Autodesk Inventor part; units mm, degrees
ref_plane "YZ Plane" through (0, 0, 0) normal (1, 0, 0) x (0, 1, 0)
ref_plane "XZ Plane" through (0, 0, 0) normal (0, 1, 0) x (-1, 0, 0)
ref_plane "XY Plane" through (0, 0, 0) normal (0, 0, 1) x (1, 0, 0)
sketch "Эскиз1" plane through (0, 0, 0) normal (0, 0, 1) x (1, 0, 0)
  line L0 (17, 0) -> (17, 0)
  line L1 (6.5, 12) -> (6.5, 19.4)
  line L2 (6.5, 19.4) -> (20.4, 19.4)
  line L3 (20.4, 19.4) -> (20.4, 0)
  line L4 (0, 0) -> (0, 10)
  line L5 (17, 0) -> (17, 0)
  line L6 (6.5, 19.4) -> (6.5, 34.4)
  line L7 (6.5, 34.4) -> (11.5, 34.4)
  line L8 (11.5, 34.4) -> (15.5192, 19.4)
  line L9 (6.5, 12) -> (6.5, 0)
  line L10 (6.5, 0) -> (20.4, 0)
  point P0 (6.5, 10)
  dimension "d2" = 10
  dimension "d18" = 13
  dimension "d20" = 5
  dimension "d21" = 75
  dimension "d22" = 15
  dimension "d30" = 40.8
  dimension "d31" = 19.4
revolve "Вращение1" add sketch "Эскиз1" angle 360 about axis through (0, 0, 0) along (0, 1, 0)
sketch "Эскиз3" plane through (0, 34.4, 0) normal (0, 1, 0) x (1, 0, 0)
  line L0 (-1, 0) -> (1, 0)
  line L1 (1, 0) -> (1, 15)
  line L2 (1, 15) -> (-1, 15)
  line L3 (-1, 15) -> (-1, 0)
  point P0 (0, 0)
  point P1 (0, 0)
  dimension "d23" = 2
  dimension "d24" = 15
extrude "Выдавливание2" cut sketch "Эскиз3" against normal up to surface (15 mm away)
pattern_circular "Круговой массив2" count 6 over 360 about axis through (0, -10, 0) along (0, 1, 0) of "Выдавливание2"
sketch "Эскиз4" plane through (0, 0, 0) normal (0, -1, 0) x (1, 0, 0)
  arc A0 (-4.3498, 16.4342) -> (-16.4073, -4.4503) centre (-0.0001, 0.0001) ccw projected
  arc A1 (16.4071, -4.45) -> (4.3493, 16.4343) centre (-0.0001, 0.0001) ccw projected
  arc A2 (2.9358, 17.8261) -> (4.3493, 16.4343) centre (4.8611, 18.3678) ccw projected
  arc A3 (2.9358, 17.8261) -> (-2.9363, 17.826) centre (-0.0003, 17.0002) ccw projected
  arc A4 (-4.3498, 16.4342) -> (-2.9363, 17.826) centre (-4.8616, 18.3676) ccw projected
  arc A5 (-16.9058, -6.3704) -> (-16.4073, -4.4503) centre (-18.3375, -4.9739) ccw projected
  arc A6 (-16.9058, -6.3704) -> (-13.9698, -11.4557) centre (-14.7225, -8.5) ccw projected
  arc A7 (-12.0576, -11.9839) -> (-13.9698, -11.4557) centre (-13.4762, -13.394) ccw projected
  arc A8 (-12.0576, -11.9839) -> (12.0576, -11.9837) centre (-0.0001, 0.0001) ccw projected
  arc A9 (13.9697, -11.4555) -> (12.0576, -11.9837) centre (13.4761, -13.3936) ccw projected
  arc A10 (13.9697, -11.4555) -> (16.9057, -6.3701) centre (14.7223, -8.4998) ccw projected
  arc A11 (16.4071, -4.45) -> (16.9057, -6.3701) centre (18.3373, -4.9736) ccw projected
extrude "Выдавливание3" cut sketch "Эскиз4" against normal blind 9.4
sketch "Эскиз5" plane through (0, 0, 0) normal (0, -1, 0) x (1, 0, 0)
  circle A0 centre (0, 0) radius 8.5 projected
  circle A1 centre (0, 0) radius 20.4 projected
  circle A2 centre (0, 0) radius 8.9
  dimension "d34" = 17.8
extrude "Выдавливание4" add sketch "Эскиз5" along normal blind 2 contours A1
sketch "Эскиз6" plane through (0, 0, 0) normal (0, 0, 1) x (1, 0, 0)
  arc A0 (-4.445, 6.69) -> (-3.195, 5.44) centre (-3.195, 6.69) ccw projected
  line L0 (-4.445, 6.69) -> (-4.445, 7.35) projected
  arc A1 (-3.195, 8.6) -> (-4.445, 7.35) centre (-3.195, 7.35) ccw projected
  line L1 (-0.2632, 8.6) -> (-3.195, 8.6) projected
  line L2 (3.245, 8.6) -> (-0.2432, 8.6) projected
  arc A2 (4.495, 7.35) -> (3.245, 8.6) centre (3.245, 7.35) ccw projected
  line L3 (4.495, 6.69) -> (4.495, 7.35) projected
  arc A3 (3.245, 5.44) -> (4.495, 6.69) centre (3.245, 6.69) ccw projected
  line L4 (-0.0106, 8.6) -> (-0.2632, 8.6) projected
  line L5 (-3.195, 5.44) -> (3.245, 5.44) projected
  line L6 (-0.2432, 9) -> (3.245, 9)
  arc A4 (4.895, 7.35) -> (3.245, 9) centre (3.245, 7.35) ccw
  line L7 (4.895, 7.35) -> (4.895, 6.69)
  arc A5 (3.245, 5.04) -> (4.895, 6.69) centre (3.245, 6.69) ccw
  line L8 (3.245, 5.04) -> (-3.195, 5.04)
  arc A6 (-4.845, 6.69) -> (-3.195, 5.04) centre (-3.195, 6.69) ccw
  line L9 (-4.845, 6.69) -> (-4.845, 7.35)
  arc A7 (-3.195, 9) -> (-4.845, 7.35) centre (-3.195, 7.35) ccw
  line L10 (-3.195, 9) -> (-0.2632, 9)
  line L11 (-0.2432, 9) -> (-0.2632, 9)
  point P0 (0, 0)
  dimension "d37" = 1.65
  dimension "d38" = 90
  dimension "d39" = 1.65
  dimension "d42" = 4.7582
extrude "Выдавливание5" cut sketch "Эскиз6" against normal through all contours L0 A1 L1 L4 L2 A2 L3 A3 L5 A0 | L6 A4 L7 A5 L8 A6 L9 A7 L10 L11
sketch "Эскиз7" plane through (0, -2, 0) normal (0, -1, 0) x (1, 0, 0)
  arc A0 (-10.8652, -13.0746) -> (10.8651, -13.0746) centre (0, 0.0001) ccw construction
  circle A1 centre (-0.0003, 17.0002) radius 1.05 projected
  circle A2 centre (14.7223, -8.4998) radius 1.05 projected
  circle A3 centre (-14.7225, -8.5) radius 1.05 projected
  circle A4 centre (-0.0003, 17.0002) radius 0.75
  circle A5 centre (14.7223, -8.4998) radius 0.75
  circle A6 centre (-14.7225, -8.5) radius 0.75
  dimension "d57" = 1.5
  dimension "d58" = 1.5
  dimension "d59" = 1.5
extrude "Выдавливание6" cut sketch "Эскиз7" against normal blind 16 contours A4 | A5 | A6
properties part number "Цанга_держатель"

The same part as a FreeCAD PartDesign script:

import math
import FreeCAD as App
import Part
import Sketcher
Q = App.Units.Quantity


def add_polygon(sketch, points):
    """Adds a closed chain of lines whose ends are joined by coincident constraints."""
    first, n = sketch.GeometryCount, len(points)
    for a, b in zip(points, points[1:] + points[:1]):
        sketch.addGeometry(Part.LineSegment(App.Vector(*a, 0), App.Vector(*b, 0)), False)
    for i in range(n):
        sketch.addConstraint(Sketcher.Constraint("Coincident", first + i, 2, first + (i + 1) % n, 1))

doc = App.newDocument("Part")
body = doc.addObject("PartDesign::Body", "Body")

# Sketch on XY plane
sketch1 = body.newObject("Sketcher::SketchObject", "Sketch")
sketch1.AttachmentSupport = (doc.getObject("XY_Plane"), [""])
sketch1.MapMode = "FlatFace"
add_polygon(sketch1, [(6.5, 0), (20.4, 0), (20.4, 19.4), (15.5, 19.4), (11.5, 34.4), (6.5, 34.4)])  # lines 0-5
sketch1.addConstraint([
    Sketcher.Constraint("Horizontal", 0),
    Sketcher.Constraint("Vertical", 1),
    Sketcher.Constraint("Horizontal", 2),
    Sketcher.Constraint("Horizontal", 4),
    Sketcher.Constraint("Vertical", 5),
    Sketcher.Constraint("PointOnObject", 0, 2, -1),
    Sketcher.Constraint("DistanceX", 4, 2, 4, 1, Q("5 mm")),
    Sketcher.Constraint("DistanceY", 1, 1, 1, 2, Q("19.4 mm")),
    Sketcher.Constraint("DistanceY", 2, 2, 3, 2, Q("15 mm")),
    Sketcher.Constraint("Angle", 3, Q("104.9999 deg")),
    Sketcher.Constraint("DistanceX", 0, 1, 0, 2, Q("13.9 mm")),
    Sketcher.Constraint("DistanceX", -1, 1, 0, 2, Q("20.4 mm")),
])
revolution = body.newObject("PartDesign::Revolution", "Revolution")
revolution.Profile = sketch1
revolution.ReferenceAxis = (sketch1, ["V_Axis"])
revolution.Angle = 360

# Sketch on XZ plane
sketch2 = body.newObject("Sketcher::SketchObject", "Sketch001")
sketch2.AttachmentSupport = (doc.getObject("XZ_Plane"), [""])
sketch2.MapMode = "FlatFace"
sketch2.AttachmentOffset = App.Placement(App.Vector(0, 0, -34.4), App.Rotation())
add_polygon(sketch2, [(-1, -15), (-1, 0), (1, 0), (1, -15)])  # lines 0-3
sketch2.addConstraint([
    Sketcher.Constraint("Vertical", 0),
    Sketcher.Constraint("Horizontal", 1),
    Sketcher.Constraint("Vertical", 2),
    Sketcher.Constraint("Horizontal", 3),
    Sketcher.Constraint("Symmetric", 0, 2, 1, 2, -1, 1),
    Sketcher.Constraint("DistanceX", 1, 1, 1, 2, Q("2 mm")),
    Sketcher.Constraint("DistanceY", 0, 1, 0, 2, Q("15 mm")),
])
pocket1 = body.newObject("PartDesign::Pocket", "Pocket")
pocket1.Profile = sketch2
pocket1.Length = 15
pocket1.Reversed = True
doc.recompute()

polarpattern = body.newObject("PartDesign::PolarPattern", "PolarPattern")
polarpattern.Originals = [pocket1]
polarpattern.Axis = (doc.getObject("Y_Axis"), [""])
polarpattern.Angle = 360
polarpattern.Occurrences = 6
body.Tip = polarpattern

# Sketch on XZ plane
sketch3 = body.newObject("Sketcher::SketchObject", "Sketch002")
sketch3.AttachmentSupport = (doc.getObject("XZ_Plane"), [""])
sketch3.MapMode = "FlatFace"
sketch3.addGeometry([
    Part.ArcOfCircle(Part.Circle(App.Vector(-4.9, 18.4, 0), App.Vector(0, 0, 1), 2), math.radians(-75), math.radians(-16)),  # 0
    Part.ArcOfCircle(Part.Circle(App.Vector(0, 0, 0), App.Vector(0, 0, 1), 17), math.radians(105), math.radians(195)),  # 1
    Part.ArcOfCircle(Part.Circle(App.Vector(-18.3, -5, 0), App.Vector(0, 0, 1), 2), math.radians(-44), math.radians(15)),  # 2
    Part.ArcOfCircle(Part.Circle(App.Vector(-14.7, -8.5, 0), App.Vector(0, 0, 1), 3), math.radians(136), math.radians(284)),  # 3
    Part.ArcOfCircle(Part.Circle(App.Vector(-13.5, -13.4, 0), App.Vector(0, 0, 1), 2), math.radians(45), math.radians(104)),  # 4
    Part.ArcOfCircle(Part.Circle(App.Vector(0, 0, 0), App.Vector(0, 0, 1), 17), math.radians(-135), math.radians(-45)),  # 5
    Part.ArcOfCircle(Part.Circle(App.Vector(13.5, -13.4, 0), App.Vector(0, 0, 1), 2), math.radians(76), math.radians(135)),  # 6
    Part.ArcOfCircle(Part.Circle(App.Vector(14.7, -8.5, 0), App.Vector(0, 0, 1), 3.1), math.radians(-104), math.radians(44)),  # 7
    Part.ArcOfCircle(Part.Circle(App.Vector(18.3, -5, 0), App.Vector(0, 0, 1), 2), math.radians(165), math.radians(224)),  # 8
    Part.ArcOfCircle(Part.Circle(App.Vector(0, 0, 0), App.Vector(0, 0, 1), 17), math.radians(-15), math.radians(75)),  # 9
    Part.ArcOfCircle(Part.Circle(App.Vector(4.9, 18.4, 0), App.Vector(0, 0, 1), 2), math.radians(-164), math.radians(-105)),  # 10
    Part.ArcOfCircle(Part.Circle(App.Vector(0, 17, 0), App.Vector(0, 0, 1), 3.1), math.radians(16), math.radians(164)),  # 11
], False)
sketch3.addConstraint([
    Sketcher.Constraint("Tangent", 0, 1, 1, 1),
    Sketcher.Constraint("Tangent", 1, 2, 2, 2),
    Sketcher.Constraint("Tangent", 2, 1, 3, 1),
    Sketcher.Constraint("Tangent", 3, 2, 4, 2),
    Sketcher.Constraint("Tangent", 4, 1, 5, 1),
    Sketcher.Constraint("Tangent", 5, 2, 6, 2),
    Sketcher.Constraint("Tangent", 6, 1, 7, 1),
    Sketcher.Constraint("Tangent", 7, 2, 8, 2),
    Sketcher.Constraint("Tangent", 8, 1, 9, 1),
    Sketcher.Constraint("Tangent", 9, 2, 10, 2),
    Sketcher.Constraint("Tangent", 10, 1, 11, 1),
    Sketcher.Constraint("Tangent", 11, 2, 0, 2),
    Sketcher.Constraint("Coincident", 1, 3, -1, 1),
    Sketcher.Constraint("Coincident", 5, 3, -1, 1),
    Sketcher.Constraint("Coincident", 9, 3, -1, 1),
    Sketcher.Constraint("Equal", 0, 2),
    Sketcher.Constraint("Equal", 1, 5),
    Sketcher.Constraint("Equal", 2, 6),
    Sketcher.Constraint("Equal", 3, 7),
    Sketcher.Constraint("Equal", 6, 8),
    Sketcher.Constraint("Equal", 5, 9),
    Sketcher.Constraint("Equal", 8, 10),
    Sketcher.Constraint("Equal", 7, 11),
    Sketcher.Constraint("Symmetric", 3, 3, 7, 3, -2),
    Sketcher.Constraint("Horizontal", 0, 3, 10, 3),
    Sketcher.Constraint("Horizontal", 4, 1, 5, 2),
    Sketcher.Constraint("Radius", 0, Q("2 mm")),
    Sketcher.Constraint("Radius", 1, Q("17 mm")),
    Sketcher.Constraint("Radius", 3, Q("3.05 mm")),
    Sketcher.Constraint("DistanceY", 1, 3, 11, 3, Q("17 mm")),
    Sketcher.Constraint("DistanceY", 3, 3, -1, 1, Q("8.5 mm")),
    Sketcher.Constraint("DistanceY", 8, 1, -1, 1, Q("4.45 mm")),
])
pocket2 = body.newObject("PartDesign::Pocket", "Pocket001")
pocket2.Profile = sketch3
pocket2.Length = 9.4

# Sketch on XZ plane
sketch4 = body.newObject("Sketcher::SketchObject", "Sketch003")
sketch4.AttachmentSupport = (doc.getObject("XZ_Plane"), [""])
sketch4.MapMode = "FlatFace"
sketch4.addGeometry([
    Part.Circle(App.Vector(0, 0, 0), App.Vector(0, 0, 1), 20),
    Part.Circle(App.Vector(0, 0, 0), App.Vector(0, 0, 1), 9),
], False)
sketch4.addConstraint([
    Sketcher.Constraint("Coincident", 0, 3, -1, 1),
    Sketcher.Constraint("Coincident", 1, 3, -1, 1),
    Sketcher.Constraint("Diameter", 1, Q("17.8 mm")),
    Sketcher.Constraint("Diameter", 0, Q("40.8 mm")),
])
pad1 = body.newObject("PartDesign::Pad", "Pad")
pad1.Profile = sketch4
pad1.Length = 2

# Sketch on XY plane
sketch5 = body.newObject("Sketcher::SketchObject", "Sketch004")
sketch5.AttachmentSupport = (doc.getObject("XY_Plane"), [""])
sketch5.MapMode = "FlatFace"
sketch5.addGeometry([
    Part.LineSegment(App.Vector(3.2, 9, 0), App.Vector(-3.2, 9, 0)),  # 0
    Part.ArcOfCircle(Part.Circle(App.Vector(-3.2, 7.3, 0), App.Vector(0, 0, 1), 1.7), math.radians(90), math.radians(180)),  # 1
    Part.LineSegment(App.Vector(-4.8, 7.3, 0), App.Vector(-4.8, 6.7, 0)),  # 2
    Part.ArcOfCircle(Part.Circle(App.Vector(-3.2, 6.7, 0), App.Vector(0, 0, 1), 1.6), math.radians(180), math.radians(270)),  # 3
    Part.LineSegment(App.Vector(-3.2, 5, 0), App.Vector(3.2, 5, 0)),  # 4
    Part.ArcOfCircle(Part.Circle(App.Vector(3.2, 6.7, 0), App.Vector(0, 0, 1), 1.7), math.radians(-90), math.radians(0)),  # 5
    Part.LineSegment(App.Vector(4.9, 6.7, 0), App.Vector(4.9, 7.3, 0)),  # 6
    Part.ArcOfCircle(Part.Circle(App.Vector(3.2, 7.3, 0), App.Vector(0, 0, 1), 1.6), math.radians(0), math.radians(90)),  # 7
], False)
sketch5.addConstraint([
    Sketcher.Constraint("Tangent", 0, 2, 1, 1),
    Sketcher.Constraint("Tangent", 1, 2, 2, 1),
    Sketcher.Constraint("Tangent", 2, 2, 3, 1),
    Sketcher.Constraint("Tangent", 3, 2, 4, 1),
    Sketcher.Constraint("Tangent", 4, 2, 5, 1),
    Sketcher.Constraint("Tangent", 5, 2, 6, 1),
    Sketcher.Constraint("Tangent", 6, 2, 7, 1),
    Sketcher.Constraint("Tangent", 7, 2, 0, 1),
    Sketcher.Constraint("Horizontal", 0),
    Sketcher.Constraint("Vertical", 2),
    Sketcher.Constraint("Horizontal", 4),
    Sketcher.Constraint("Vertical", 6),
    Sketcher.Constraint("Equal", 1, 3),
    Sketcher.Constraint("Equal", 3, 5),
    Sketcher.Constraint("Equal", 5, 7),
    Sketcher.Constraint("Radius", 1, Q("1.65 mm")),
    Sketcher.Constraint("DistanceY", -1, 1, 0, 2, Q("9 mm")),
    Sketcher.Constraint("DistanceX", 0, 2, 0, 1, Q("6.44 mm")),
    Sketcher.Constraint("DistanceY", 2, 2, 2, 1, Q("0.66 mm")),
    Sketcher.Constraint("DistanceX", 1, 3, -1, 1, Q("3.195 mm")),
])
pocket3 = body.newObject("PartDesign::Pocket", "Pocket002")
pocket3.Profile = sketch5
pocket3.Type = "ThroughAll"

# Sketch on XZ plane
sketch6 = body.newObject("Sketcher::SketchObject", "Sketch005")
sketch6.AttachmentSupport = (doc.getObject("XZ_Plane"), [""])
sketch6.MapMode = "FlatFace"
sketch6.AttachmentOffset = App.Placement(App.Vector(0, 0, 2), App.Rotation())
sketch6.addGeometry([
    Part.Circle(App.Vector(0, 17, 0), App.Vector(0, 0, 1), 0.8),
    Part.Circle(App.Vector(14.7, -8.5, 0), App.Vector(0, 0, 1), 0.8),
    Part.Circle(App.Vector(-14.7, -8.5, 0), App.Vector(0, 0, 1), 0.8),
], False)
sketch6.addConstraint([
    Sketcher.Constraint("Equal", 0, 1),
    Sketcher.Constraint("Equal", 1, 2),
    Sketcher.Constraint("Symmetric", 1, 3, 2, 3, -2),
    Sketcher.Constraint("Diameter", 0, Q("1.5 mm")),
    Sketcher.Constraint("DistanceY", 2, 3, -1, 1, Q("8.5 mm")),
    Sketcher.Constraint("DistanceY", 1, 3, 0, 3, Q("25.5 mm")),
    Sketcher.Constraint("DistanceX", 0, 3, -1, 1, Q("0.0003 mm")),
    Sketcher.Constraint("DistanceX", -1, 1, 1, 3, Q("14.7223 mm")),
])
pocket4 = body.newObject("PartDesign::Pocket", "Pocket003")
pocket4.Profile = sketch6
pocket4.Length = 16

doc.recompute()
